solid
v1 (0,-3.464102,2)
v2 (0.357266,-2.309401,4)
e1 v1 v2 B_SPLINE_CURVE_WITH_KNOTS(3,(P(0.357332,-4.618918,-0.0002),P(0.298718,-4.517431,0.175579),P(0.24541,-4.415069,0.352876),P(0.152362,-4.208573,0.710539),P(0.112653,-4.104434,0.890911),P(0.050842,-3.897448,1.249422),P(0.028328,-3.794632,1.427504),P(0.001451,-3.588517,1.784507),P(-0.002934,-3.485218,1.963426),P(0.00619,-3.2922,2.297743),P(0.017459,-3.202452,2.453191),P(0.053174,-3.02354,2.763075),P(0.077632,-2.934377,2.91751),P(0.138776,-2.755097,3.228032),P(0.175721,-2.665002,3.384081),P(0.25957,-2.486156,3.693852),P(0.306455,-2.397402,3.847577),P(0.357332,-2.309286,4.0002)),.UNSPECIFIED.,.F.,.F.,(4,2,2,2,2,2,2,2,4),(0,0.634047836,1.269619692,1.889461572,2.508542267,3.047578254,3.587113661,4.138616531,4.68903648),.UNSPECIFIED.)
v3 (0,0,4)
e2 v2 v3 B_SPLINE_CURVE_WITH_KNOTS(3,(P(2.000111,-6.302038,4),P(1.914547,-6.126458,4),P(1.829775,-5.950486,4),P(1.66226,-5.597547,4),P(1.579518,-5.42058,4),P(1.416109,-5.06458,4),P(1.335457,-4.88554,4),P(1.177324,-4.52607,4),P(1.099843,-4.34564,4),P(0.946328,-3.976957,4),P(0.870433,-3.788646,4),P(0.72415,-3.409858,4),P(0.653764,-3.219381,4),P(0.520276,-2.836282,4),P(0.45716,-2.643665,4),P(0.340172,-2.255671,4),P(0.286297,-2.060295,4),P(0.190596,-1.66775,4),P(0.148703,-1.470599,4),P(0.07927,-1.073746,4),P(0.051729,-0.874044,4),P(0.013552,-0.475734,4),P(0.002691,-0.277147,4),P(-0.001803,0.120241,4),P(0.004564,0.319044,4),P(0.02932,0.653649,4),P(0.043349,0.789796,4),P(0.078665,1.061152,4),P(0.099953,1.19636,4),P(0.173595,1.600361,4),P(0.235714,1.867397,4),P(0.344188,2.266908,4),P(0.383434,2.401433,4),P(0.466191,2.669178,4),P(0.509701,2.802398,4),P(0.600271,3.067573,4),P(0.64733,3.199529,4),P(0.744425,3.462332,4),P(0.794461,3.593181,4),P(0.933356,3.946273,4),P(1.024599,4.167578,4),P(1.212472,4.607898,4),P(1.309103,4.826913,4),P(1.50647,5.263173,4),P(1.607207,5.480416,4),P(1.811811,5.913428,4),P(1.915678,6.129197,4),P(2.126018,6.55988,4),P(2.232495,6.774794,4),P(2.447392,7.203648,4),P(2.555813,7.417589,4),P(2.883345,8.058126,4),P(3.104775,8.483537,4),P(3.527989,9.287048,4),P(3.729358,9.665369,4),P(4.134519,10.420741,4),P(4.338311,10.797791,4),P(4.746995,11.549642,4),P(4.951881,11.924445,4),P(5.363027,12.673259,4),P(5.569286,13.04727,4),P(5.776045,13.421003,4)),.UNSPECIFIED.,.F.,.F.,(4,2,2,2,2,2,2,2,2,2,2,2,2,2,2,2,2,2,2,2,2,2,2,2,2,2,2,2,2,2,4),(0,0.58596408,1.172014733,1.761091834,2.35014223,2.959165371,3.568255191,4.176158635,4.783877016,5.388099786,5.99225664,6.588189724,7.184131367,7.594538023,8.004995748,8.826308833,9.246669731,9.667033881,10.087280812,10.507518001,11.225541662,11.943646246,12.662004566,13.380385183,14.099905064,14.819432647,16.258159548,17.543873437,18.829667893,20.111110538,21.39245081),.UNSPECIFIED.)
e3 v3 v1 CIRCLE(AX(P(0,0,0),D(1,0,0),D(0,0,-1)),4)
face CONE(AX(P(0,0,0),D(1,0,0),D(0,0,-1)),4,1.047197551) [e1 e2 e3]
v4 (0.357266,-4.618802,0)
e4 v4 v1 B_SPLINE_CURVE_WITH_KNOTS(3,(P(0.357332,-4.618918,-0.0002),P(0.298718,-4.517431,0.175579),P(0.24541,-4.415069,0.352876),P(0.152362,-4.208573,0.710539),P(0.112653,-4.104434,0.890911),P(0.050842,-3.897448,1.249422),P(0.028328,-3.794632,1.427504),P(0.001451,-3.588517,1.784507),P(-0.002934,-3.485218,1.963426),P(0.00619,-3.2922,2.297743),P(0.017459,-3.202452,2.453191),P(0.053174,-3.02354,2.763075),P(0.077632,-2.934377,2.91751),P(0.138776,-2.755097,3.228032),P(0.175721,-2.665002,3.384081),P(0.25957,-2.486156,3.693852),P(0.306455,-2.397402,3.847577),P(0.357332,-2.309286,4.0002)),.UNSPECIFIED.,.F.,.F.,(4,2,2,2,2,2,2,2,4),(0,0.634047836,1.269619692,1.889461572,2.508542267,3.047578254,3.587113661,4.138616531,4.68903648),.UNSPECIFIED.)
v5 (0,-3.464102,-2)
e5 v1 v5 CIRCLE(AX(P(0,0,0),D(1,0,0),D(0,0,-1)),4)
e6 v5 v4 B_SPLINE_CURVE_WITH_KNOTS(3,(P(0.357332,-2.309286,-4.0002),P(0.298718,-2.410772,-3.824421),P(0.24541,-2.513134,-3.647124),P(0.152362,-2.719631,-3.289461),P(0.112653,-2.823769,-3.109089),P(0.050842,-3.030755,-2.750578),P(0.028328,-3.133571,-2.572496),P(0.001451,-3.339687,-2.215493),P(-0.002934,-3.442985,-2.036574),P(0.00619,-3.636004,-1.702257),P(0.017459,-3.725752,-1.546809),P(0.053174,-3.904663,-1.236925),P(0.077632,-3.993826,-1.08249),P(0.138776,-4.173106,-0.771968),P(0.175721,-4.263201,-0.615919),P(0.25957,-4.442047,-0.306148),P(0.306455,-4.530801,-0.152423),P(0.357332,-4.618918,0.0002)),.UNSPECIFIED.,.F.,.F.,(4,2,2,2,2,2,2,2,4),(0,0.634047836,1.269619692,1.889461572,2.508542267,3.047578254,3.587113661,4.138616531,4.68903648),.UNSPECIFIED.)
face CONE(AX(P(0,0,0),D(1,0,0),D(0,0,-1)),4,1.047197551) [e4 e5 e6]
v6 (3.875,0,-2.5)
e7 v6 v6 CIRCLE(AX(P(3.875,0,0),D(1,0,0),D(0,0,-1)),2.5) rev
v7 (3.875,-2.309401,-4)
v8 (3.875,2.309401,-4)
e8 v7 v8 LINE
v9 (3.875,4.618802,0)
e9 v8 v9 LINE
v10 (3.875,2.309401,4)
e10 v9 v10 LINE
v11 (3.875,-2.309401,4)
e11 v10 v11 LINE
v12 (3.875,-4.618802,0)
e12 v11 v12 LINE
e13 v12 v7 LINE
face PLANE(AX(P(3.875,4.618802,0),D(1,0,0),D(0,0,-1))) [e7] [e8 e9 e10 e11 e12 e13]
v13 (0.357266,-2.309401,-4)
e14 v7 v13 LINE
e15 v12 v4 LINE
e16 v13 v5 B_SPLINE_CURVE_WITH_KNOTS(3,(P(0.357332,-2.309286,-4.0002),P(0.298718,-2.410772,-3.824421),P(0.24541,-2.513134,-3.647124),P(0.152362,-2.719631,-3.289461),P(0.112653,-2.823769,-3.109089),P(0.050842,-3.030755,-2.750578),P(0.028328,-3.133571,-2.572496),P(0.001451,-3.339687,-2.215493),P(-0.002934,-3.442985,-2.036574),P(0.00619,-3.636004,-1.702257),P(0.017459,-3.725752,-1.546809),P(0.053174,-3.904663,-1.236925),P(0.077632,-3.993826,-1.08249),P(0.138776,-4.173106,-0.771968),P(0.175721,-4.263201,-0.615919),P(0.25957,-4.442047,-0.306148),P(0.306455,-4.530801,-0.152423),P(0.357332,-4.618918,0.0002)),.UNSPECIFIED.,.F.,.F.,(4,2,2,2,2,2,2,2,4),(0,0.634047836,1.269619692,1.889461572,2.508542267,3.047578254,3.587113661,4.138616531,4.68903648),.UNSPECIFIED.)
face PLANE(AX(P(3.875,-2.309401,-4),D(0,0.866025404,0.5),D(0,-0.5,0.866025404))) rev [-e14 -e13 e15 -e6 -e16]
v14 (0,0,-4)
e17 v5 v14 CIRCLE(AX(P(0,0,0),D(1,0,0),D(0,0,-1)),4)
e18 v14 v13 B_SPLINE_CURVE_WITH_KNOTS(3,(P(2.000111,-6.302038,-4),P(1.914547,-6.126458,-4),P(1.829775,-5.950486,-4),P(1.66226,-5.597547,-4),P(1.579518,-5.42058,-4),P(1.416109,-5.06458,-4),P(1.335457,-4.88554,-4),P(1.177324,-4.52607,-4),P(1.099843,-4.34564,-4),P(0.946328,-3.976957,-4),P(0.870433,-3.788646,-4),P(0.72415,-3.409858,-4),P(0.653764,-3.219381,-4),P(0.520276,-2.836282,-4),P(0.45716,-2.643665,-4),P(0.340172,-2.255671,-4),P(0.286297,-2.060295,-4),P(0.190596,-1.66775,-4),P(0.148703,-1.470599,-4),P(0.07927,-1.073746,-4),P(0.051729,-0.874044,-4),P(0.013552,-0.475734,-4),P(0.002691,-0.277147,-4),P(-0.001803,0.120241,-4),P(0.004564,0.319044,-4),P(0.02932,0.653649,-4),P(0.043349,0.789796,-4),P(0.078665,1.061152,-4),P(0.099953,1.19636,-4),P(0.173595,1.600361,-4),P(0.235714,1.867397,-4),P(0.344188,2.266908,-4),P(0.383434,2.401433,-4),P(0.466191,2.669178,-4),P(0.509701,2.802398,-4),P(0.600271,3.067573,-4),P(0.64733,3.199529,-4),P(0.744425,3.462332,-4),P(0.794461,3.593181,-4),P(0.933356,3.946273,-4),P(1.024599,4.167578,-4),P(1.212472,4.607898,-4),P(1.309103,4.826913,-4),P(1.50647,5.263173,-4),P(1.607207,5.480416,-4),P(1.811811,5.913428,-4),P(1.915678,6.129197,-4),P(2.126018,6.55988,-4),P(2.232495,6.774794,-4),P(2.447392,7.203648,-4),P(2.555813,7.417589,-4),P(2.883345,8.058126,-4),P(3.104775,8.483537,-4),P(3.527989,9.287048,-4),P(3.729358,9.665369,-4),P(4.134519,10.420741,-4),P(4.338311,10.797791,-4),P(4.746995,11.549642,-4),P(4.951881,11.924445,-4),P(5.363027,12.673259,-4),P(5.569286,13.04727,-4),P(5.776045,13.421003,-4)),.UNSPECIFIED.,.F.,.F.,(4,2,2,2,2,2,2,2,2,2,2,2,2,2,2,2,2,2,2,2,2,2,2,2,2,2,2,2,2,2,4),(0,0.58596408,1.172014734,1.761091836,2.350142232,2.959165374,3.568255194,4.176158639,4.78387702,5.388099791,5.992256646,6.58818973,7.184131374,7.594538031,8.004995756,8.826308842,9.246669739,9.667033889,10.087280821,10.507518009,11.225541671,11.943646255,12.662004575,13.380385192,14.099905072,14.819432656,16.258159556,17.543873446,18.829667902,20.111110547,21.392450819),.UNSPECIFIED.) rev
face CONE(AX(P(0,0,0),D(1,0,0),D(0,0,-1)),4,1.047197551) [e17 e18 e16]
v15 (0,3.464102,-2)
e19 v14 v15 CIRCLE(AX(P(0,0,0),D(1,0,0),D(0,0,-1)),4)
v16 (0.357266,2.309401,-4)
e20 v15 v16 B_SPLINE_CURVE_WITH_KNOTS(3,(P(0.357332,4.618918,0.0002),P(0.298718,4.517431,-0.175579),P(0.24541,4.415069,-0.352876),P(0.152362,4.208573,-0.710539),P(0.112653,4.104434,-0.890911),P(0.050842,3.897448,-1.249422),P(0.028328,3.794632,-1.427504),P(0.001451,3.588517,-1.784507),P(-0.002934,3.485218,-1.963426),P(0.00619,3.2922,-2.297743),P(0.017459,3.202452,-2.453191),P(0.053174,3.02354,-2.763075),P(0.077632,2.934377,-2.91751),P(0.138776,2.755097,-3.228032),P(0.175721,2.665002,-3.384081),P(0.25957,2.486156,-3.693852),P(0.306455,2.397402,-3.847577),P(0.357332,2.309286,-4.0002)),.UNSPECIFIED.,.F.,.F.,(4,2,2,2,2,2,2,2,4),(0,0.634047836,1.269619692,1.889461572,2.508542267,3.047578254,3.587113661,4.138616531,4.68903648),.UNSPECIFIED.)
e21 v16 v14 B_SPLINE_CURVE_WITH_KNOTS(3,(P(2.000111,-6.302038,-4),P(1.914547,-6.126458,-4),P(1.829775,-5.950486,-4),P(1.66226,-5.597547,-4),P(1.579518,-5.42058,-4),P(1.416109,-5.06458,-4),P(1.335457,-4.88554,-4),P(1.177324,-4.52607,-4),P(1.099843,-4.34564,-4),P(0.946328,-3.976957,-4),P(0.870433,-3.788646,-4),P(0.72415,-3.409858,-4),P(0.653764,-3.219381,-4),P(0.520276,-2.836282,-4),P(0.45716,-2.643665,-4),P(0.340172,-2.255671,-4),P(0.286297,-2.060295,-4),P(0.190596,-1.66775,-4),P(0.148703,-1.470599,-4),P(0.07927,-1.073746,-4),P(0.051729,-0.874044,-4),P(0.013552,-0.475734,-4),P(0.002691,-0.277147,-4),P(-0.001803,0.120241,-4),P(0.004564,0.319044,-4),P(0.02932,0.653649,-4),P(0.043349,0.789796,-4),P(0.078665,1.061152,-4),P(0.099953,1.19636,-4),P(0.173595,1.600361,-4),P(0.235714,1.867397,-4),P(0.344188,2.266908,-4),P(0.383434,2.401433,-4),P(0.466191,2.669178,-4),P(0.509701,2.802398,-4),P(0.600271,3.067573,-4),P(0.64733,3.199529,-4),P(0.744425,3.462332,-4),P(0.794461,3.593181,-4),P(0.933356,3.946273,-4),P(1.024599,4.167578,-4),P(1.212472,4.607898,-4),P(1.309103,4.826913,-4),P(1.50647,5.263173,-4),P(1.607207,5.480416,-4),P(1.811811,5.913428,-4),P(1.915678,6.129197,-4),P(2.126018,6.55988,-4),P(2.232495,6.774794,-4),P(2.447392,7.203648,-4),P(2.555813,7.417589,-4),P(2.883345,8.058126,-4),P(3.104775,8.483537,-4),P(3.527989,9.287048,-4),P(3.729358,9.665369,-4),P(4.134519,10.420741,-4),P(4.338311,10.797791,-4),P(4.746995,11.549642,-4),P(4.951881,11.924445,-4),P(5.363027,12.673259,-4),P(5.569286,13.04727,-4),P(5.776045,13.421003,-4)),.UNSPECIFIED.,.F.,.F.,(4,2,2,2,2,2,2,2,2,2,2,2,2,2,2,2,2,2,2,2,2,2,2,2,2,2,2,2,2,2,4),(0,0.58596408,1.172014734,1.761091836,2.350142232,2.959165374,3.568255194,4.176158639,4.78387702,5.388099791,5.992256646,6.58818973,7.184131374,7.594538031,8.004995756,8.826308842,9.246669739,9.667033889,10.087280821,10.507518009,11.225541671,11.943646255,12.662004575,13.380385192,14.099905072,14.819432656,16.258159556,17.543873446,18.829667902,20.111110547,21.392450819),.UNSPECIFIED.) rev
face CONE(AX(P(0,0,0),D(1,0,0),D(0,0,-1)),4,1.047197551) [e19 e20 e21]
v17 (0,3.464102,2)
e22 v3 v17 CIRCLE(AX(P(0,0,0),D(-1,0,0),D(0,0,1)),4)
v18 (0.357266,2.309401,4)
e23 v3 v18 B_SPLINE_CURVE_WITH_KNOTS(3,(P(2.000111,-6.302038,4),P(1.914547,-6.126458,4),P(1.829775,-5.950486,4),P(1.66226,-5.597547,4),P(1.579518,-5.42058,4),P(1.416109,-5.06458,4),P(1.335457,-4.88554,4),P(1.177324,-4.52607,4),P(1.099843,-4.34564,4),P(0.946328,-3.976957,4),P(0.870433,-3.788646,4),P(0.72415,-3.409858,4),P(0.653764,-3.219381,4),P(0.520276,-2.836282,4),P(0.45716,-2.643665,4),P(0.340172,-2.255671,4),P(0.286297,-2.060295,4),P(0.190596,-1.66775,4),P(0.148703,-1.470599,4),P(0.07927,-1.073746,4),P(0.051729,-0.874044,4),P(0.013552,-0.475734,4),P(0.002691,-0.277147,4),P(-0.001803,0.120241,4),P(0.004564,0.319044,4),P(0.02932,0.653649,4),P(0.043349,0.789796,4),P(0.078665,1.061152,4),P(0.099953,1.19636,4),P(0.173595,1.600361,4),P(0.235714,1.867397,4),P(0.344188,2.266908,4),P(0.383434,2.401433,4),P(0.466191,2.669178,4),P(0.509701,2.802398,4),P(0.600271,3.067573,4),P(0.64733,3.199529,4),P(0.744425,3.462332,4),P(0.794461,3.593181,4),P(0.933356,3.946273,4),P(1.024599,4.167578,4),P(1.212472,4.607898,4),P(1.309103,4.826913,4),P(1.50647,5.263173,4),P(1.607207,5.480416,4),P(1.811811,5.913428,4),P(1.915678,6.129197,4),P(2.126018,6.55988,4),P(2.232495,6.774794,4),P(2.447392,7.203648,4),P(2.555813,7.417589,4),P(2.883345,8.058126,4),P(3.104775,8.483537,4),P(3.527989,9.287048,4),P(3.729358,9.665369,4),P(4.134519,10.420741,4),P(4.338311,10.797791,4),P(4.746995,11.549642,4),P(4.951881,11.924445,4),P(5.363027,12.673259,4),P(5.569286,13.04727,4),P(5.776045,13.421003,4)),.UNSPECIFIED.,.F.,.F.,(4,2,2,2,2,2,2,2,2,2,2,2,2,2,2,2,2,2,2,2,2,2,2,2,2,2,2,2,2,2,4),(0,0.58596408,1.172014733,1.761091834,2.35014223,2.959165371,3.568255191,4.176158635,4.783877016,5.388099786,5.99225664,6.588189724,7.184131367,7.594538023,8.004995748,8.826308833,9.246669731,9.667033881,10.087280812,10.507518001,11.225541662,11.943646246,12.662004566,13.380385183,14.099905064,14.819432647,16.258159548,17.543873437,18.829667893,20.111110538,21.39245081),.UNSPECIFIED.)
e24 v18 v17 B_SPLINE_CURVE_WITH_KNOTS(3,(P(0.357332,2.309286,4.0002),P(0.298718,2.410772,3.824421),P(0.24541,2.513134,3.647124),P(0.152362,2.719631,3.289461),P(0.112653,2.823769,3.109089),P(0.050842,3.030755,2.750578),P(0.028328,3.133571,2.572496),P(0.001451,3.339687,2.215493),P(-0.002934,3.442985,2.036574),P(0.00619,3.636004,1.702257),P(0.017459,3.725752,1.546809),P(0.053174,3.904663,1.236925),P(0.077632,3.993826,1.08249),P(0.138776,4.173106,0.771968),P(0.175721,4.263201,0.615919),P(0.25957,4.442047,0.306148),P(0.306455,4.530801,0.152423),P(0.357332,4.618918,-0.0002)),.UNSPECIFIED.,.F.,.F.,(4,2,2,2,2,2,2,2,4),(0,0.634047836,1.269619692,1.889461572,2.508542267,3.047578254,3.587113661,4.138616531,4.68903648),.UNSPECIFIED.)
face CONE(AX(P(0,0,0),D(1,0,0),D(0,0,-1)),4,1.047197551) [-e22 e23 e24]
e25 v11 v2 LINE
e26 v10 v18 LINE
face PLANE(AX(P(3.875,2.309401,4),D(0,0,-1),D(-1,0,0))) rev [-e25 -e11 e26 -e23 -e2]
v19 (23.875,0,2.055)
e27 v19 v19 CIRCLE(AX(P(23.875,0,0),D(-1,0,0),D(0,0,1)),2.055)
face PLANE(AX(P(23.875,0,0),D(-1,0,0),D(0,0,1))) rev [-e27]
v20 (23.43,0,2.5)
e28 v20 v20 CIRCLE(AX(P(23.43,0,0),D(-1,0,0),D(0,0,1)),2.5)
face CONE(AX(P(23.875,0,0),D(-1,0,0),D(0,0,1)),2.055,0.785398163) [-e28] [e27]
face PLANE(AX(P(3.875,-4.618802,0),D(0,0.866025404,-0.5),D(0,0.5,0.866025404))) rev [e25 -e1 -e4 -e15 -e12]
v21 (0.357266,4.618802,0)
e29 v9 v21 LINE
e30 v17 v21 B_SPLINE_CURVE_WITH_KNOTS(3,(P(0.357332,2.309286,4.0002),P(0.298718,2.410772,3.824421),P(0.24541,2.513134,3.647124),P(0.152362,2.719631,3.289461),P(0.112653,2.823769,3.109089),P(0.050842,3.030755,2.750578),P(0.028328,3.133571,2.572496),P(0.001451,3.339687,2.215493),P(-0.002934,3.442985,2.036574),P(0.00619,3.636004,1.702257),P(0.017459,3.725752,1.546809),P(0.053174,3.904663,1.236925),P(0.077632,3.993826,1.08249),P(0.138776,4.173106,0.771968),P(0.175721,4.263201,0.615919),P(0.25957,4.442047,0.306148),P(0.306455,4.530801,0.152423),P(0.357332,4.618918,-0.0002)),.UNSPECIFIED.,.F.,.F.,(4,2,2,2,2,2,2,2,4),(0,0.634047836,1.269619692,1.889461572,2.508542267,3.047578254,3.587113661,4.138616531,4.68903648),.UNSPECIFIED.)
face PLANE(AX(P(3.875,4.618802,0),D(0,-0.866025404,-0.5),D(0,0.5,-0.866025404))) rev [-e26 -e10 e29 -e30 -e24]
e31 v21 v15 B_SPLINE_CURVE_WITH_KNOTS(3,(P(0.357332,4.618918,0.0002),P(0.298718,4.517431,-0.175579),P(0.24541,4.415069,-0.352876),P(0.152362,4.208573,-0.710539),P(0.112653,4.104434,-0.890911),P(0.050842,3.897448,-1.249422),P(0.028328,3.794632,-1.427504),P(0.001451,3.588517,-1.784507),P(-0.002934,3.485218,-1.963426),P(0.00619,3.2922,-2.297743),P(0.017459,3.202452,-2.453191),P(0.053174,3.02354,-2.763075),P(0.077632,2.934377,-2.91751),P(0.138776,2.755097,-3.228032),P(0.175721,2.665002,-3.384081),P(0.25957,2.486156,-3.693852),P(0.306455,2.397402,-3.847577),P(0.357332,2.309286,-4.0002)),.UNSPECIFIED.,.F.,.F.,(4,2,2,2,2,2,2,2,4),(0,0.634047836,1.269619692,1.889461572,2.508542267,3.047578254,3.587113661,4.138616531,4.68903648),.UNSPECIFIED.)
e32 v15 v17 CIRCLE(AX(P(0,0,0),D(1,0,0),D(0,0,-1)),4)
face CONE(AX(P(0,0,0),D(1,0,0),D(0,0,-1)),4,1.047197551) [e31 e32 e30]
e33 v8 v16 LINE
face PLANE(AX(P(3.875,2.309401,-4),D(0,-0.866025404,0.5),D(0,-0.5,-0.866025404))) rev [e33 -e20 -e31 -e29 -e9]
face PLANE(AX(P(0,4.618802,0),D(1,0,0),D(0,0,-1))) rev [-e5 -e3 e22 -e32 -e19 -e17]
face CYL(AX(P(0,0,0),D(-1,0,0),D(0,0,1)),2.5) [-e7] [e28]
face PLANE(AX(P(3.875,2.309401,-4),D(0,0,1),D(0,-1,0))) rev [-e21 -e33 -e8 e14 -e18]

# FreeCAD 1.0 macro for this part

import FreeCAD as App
import Part
import Sketcher
from FreeCAD import Vector
Q = App.Units.Quantity


def add_polygon(sketch, points):
    """Adds a closed chain of lines whose ends are joined by coincident constraints."""
    first, n = sketch.GeometryCount, len(points)
    for a, b in zip(points, points[1:] + points[:1]):
        sketch.addGeometry(Part.LineSegment(App.Vector(*a, 0), App.Vector(*b, 0)), False)
    for i in range(n):
        sketch.addConstraint(Sketcher.Constraint("Coincident", first + i, 2, first + (i + 1) % n, 1))

doc = App.newDocument("Part")
body = doc.addObject("PartDesign::Body", "Body")

sketch1 = body.newObject("Sketcher::SketchObject", "Sketch")
sketch1.AttachmentSupport = (doc.getObject("YZ_Plane"), [""])
sketch1.MapMode = "FlatFace"
add_polygon(sketch1, [(-2.3, -4), (2.3, -4), (4.6, 0), (2.3, 4), (-2.3, 4), (-4.6, 0)])
sketch1.addConstraint([
    Sketcher.Constraint("Horizontal", 0),
    Sketcher.Constraint("Horizontal", 3),
    Sketcher.Constraint("Symmetric", 0, 2, 3, 2, -1, 1),
    Sketcher.Constraint("Symmetric", 1, 2, 4, 2, -1, 1),
    Sketcher.Constraint("PointOnObject", 1, 2, -1),
    Sketcher.Constraint("Parallel", 2, 5),
    Sketcher.Constraint("Vertical", 0, 2, 2, 2),
    Sketcher.Constraint("Angle", 1, Q("60 deg")),
    Sketcher.Constraint("DistanceY", 0, 2, -1, 1, Q("4 mm")),
    Sketcher.Constraint("DistanceX", -1, 1, 0, 2, Q("2.309401 mm")),
])
pad1 = body.newObject("PartDesign::Pad", "Pad")
pad1.Profile = sketch1
pad1.Length = 3.875

sketch2 = body.newObject("Sketcher::SketchObject", "Sketch001")
sketch2.AttachmentSupport = (doc.getObject("XY_Plane"), [""])
sketch2.MapMode = "FlatFace"
add_polygon(sketch2, [(0, 0), (23.9, 0), (23.9, 2.1), (23.4, 2.5), (0, 2.5)])
sketch2.addConstraint([
    Sketcher.Constraint("Horizontal", 0),
    Sketcher.Constraint("Vertical", 1),
    Sketcher.Constraint("Horizontal", 3),
    Sketcher.Constraint("Vertical", 4),
    Sketcher.Constraint("Coincident", 4, 2, -1, 1),
    Sketcher.Constraint("Angle", 2, Q("135 deg")),
    Sketcher.Constraint("DistanceY", 4, 2, 4, 1, Q("2.5 mm")),
    Sketcher.Constraint("DistanceX", 3, 2, 3, 1, Q("23.43 mm")),
    Sketcher.Constraint("DistanceX", 0, 1, 0, 2, Q("23.875 mm")),
])
revolution = body.newObject("PartDesign::Revolution", "Revolution")
revolution.Profile = sketch2
revolution.ReferenceAxis = (sketch2, ["H_Axis"])
revolution.Angle = 360

sketch3 = body.newObject("Sketcher::SketchObject", "Sketch002")
sketch3.AttachmentSupport = (doc.getObject("XY_Plane"), [""])
sketch3.MapMode = "FlatFace"
add_polygon(sketch3, [(0, 4), (3, 10), (3, 15), (-10, 15), (-10, 4)])
sketch3.addConstraint([
    Sketcher.Constraint("Vertical", 1),
    Sketcher.Constraint("Horizontal", 2),
    Sketcher.Constraint("Vertical", 3),
    Sketcher.Constraint("Horizontal", 4),
    Sketcher.Constraint("PointOnObject", 4, 2, -2),
    Sketcher.Constraint("DistanceX", 4, 1, 4, 2, Q("10 mm")),
    Sketcher.Constraint("DistanceY", 1, 1, 1, 2, Q("5 mm")),
    Sketcher.Constraint("Angle", 0, Q("60 deg")),
    Sketcher.Constraint("DistanceY", -1, 1, 3, 2, Q("4 mm")),
    Sketcher.Constraint("DistanceX", 2, 2, 2, 1, Q("13.244017 mm")),
])
groove = body.newObject("PartDesign::Groove", "Groove")
groove.Profile = sketch3
groove.ReferenceAxis = (sketch3, ["H_Axis"])
groove.Angle = 360

doc.recompute()
